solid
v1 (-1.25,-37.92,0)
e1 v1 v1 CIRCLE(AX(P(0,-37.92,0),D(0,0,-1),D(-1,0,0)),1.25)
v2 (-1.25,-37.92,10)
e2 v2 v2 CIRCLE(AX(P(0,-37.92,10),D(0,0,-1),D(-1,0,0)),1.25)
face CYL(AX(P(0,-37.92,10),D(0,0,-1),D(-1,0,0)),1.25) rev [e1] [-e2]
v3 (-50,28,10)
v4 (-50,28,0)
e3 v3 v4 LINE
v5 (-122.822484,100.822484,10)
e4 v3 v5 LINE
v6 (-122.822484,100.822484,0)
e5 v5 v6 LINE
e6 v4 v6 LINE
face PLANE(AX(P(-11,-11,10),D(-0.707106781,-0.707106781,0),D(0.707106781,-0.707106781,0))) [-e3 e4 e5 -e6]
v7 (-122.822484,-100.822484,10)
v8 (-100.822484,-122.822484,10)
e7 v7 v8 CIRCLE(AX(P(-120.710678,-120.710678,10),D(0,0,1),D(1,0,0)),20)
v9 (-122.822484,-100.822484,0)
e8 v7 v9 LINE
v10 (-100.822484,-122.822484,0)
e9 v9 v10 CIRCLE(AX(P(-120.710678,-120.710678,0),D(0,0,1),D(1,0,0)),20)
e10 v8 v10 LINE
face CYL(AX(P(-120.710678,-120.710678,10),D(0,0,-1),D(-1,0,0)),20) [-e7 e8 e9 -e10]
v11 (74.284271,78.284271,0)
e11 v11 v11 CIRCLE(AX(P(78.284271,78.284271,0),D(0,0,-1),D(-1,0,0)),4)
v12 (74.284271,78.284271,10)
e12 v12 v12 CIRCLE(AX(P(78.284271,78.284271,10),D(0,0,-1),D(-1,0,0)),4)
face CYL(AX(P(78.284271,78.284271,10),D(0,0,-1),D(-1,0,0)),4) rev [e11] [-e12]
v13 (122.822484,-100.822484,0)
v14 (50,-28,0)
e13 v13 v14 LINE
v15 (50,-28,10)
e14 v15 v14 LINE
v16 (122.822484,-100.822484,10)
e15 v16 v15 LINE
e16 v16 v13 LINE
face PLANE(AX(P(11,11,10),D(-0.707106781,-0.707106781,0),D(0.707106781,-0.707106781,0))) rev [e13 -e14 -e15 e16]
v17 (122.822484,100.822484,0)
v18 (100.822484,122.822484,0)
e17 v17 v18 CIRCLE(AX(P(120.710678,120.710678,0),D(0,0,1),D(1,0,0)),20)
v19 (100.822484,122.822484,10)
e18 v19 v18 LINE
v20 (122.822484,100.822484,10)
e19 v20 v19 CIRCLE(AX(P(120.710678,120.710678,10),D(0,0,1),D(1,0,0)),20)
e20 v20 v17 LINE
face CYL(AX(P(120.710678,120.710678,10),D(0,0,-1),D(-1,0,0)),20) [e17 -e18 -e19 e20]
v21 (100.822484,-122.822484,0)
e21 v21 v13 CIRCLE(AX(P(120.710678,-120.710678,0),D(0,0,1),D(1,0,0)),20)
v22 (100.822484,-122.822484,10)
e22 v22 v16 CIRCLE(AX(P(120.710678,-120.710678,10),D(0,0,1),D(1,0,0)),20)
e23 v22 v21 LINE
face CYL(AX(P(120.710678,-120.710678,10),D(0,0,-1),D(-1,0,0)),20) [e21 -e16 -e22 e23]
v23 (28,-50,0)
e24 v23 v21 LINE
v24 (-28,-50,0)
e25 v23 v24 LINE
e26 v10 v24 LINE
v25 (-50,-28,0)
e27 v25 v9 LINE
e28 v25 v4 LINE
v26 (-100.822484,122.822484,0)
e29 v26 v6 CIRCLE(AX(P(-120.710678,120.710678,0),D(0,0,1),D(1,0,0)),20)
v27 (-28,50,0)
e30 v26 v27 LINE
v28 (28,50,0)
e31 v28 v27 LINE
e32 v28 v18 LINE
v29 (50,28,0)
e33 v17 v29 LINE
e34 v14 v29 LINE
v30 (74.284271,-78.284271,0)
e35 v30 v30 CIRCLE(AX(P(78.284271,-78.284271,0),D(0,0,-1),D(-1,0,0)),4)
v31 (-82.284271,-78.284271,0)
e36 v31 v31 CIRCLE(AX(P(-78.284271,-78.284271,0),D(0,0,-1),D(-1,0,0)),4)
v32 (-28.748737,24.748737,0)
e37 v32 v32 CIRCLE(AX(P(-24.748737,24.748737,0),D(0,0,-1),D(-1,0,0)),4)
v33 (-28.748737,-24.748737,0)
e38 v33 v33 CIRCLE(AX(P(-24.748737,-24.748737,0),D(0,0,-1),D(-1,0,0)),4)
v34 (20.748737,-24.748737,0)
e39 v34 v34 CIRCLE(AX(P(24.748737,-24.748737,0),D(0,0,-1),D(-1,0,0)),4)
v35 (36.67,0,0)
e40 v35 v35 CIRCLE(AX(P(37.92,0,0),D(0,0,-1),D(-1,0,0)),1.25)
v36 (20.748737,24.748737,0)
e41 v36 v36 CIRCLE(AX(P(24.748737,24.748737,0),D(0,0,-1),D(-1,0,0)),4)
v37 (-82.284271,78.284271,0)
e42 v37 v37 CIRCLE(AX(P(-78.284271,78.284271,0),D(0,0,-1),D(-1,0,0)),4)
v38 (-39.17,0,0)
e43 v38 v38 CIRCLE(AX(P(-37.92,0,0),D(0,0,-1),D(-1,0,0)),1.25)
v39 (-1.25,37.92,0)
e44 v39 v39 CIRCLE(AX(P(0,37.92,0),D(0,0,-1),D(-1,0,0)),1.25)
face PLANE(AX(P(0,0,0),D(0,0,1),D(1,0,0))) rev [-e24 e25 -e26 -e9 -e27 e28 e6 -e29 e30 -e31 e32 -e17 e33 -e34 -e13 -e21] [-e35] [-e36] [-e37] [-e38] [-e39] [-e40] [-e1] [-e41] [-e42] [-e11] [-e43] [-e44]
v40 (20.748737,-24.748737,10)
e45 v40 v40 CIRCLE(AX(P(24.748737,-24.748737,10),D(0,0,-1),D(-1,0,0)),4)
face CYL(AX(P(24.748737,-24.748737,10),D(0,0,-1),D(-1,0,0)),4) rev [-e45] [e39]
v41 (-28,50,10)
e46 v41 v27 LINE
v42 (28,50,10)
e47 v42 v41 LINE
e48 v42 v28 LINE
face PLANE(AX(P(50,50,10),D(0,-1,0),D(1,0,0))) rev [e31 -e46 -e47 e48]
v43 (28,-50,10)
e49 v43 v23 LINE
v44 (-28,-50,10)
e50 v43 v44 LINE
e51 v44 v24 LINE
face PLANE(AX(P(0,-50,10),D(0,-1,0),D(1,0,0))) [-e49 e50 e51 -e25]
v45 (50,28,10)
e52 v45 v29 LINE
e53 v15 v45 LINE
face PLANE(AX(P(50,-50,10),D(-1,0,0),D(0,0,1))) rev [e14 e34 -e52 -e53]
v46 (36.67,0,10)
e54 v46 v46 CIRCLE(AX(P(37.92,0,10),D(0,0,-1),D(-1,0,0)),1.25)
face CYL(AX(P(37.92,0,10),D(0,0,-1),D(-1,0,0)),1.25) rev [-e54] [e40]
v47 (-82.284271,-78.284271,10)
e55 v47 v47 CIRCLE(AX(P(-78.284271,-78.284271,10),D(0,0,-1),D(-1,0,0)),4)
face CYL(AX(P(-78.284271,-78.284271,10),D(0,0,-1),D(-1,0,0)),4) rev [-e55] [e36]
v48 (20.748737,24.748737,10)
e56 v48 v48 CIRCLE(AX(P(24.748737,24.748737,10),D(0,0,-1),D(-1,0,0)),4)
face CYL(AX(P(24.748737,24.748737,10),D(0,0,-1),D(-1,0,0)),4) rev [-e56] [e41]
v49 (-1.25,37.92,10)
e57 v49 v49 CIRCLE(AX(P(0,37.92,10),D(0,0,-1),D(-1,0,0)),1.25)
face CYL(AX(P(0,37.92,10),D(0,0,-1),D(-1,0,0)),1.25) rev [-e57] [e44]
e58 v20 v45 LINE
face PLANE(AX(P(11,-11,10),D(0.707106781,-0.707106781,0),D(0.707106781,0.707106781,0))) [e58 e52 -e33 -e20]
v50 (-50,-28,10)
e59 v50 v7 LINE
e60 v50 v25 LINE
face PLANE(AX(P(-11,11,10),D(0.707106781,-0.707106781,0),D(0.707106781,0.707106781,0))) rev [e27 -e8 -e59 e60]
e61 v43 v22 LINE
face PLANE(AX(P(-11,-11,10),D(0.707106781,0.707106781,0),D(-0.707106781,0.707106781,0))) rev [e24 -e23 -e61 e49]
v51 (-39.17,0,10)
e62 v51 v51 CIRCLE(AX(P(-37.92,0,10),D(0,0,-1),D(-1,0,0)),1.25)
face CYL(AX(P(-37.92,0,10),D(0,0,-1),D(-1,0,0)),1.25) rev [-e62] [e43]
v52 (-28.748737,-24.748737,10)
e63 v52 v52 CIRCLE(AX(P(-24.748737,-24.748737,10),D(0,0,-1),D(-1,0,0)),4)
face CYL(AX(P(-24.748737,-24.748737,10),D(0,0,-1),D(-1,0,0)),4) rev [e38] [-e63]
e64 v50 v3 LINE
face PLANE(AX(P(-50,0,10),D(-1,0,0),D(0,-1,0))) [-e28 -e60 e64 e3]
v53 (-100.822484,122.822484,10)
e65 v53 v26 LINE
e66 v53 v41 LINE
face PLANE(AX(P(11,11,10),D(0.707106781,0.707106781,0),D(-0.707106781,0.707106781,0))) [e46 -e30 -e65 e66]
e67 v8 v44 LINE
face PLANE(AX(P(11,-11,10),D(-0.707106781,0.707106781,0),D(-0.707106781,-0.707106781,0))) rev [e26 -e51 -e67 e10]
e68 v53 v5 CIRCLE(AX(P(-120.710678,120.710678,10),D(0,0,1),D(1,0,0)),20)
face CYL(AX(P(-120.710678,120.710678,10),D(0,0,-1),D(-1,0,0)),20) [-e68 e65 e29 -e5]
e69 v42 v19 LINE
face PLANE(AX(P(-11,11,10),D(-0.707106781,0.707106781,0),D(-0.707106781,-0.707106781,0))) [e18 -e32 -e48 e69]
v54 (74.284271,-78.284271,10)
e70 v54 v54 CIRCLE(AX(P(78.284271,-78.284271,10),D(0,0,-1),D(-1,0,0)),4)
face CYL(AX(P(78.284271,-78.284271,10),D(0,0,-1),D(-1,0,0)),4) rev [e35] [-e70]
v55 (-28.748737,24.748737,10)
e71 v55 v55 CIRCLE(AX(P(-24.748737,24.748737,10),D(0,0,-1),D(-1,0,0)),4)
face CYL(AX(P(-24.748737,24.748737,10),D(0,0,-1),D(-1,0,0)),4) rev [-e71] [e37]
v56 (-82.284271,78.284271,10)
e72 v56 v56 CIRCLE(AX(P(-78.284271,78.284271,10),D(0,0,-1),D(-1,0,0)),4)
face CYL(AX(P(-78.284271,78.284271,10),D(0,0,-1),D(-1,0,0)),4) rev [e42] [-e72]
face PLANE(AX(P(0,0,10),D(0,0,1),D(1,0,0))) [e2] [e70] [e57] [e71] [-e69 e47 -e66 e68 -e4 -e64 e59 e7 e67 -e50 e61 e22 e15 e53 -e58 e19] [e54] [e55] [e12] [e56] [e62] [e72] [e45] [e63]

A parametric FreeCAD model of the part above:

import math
import FreeCAD as App
import Part
import Sketcher
from FreeCAD import Vector
Q = App.Units.Quantity

doc = App.newDocument("Part")
body = doc.addObject("PartDesign::Body", "Body")

# Sketch on XY plane
sketch1 = doc.addObject("Sketcher::SketchObject", "Sketch")
body.addObject(sketch1)
sketch1.AttachmentSupport = (doc.XY_Plane, [""])
sketch1.MapMode = "FlatFace"
sketch1.addGeometry(Part.ArcOfCircle(Part.Circle(Vector(-121, 121, 0), Vector(0, 0, 1), 20), math.radians(6), math.radians(264)), False)
sketch1.addGeometry(Part.LineSegment(Vector(-123, 101, 0), Vector(-50, 28, 0)), False)
sketch1.addGeometry(Part.LineSegment(Vector(-50, 28, 0), Vector(-50, -28, 0)), False)
sketch1.addGeometry(Part.LineSegment(Vector(-50, -28, 0), Vector(-123, -101, 0)), False)
sketch1.addGeometry(Part.ArcOfCircle(Part.Circle(Vector(-121, -121, 0), Vector(0, 0, 1), 20), math.radians(96), math.radians(354)), False)
sketch1.addGeometry(Part.LineSegment(Vector(-101, -123, 0), Vector(-28, -50, 0)), False)
sketch1.addGeometry(Part.LineSegment(Vector(-28, -50, 0), Vector(28, -50, 0)), False)
sketch1.addGeometry(Part.LineSegment(Vector(28, -50, 0), Vector(101, -123, 0)), False)
sketch1.addGeometry(Part.ArcOfCircle(Part.Circle(Vector(121, -121, 0), Vector(0, 0, 1), 20), math.radians(-174), math.radians(0)), False)
sketch1.addGeometry(Part.ArcOfCircle(Part.Circle(Vector(121, -121, 0), Vector(0, 0, 1), 20), math.radians(0), math.radians(84)), False)
sketch1.addGeometry(Part.LineSegment(Vector(123, -101, 0), Vector(50, -28, 0)), False)
sketch1.addGeometry(Part.LineSegment(Vector(50, -28, 0), Vector(50, 28, 0)), False)
sketch1.addGeometry(Part.LineSegment(Vector(50, 28, 0), Vector(123, 101, 0)), False)
sketch1.addGeometry(Part.ArcOfCircle(Part.Circle(Vector(121, 121, 0), Vector(0, 0, 1), 20), math.radians(-84), math.radians(0)), False)
sketch1.addGeometry(Part.ArcOfCircle(Part.Circle(Vector(121, 121, 0), Vector(0, 0, 1), 20), math.radians(0), math.radians(174)), False)
sketch1.addGeometry(Part.LineSegment(Vector(101, 123, 0), Vector(28, 50, 0)), False)
sketch1.addGeometry(Part.LineSegment(Vector(28, 50, 0), Vector(-28, 50, 0)), False)
sketch1.addGeometry(Part.LineSegment(Vector(-28, 50, 0), Vector(-101, 123, 0)), False)
sketch1.addConstraint(Sketcher.Constraint("Coincident", 0, 2, 1, 1))
sketch1.addConstraint(Sketcher.Constraint("Coincident", 1, 2, 2, 1))
sketch1.addConstraint(Sketcher.Constraint("Coincident", 2, 2, 3, 1))
sketch1.addConstraint(Sketcher.Constraint("Coincident", 3, 2, 4, 1))
sketch1.addConstraint(Sketcher.Constraint("Coincident", 4, 2, 5, 1))
sketch1.addConstraint(Sketcher.Constraint("Coincident", 5, 2, 6, 1))
sketch1.addConstraint(Sketcher.Constraint("Coincident", 6, 2, 7, 1))
sketch1.addConstraint(Sketcher.Constraint("Coincident", 7, 2, 8, 1))
sketch1.addConstraint(Sketcher.Constraint("Tangent", 8, 2, 9, 1))
sketch1.addConstraint(Sketcher.Constraint("Coincident", 9, 2, 10, 1))
sketch1.addConstraint(Sketcher.Constraint("Coincident", 10, 2, 11, 1))
sketch1.addConstraint(Sketcher.Constraint("Coincident", 11, 2, 12, 1))
sketch1.addConstraint(Sketcher.Constraint("Coincident", 12, 2, 13, 1))
sketch1.addConstraint(Sketcher.Constraint("Tangent", 13, 2, 14, 1))
sketch1.addConstraint(Sketcher.Constraint("Coincident", 14, 2, 15, 1))
sketch1.addConstraint(Sketcher.Constraint("Coincident", 15, 2, 16, 1))
sketch1.addConstraint(Sketcher.Constraint("Coincident", 16, 2, 17, 1))
sketch1.addConstraint(Sketcher.Constraint("Coincident", 17, 2, 0, 1))
sketch1.addConstraint(Sketcher.Constraint("Vertical", 2))
sketch1.addConstraint(Sketcher.Constraint("Horizontal", 6))
sketch1.addConstraint(Sketcher.Constraint("Vertical", 11))
sketch1.addConstraint(Sketcher.Constraint("Horizontal", 16))
sketch1.addConstraint(Sketcher.Constraint("Equal", 0, 4))
sketch1.addConstraint(Sketcher.Constraint("Equal", 4, 8))
sketch1.addConstraint(Sketcher.Constraint("Equal", 8, 9))
sketch1.addConstraint(Sketcher.Constraint("Equal", 9, 13))
sketch1.addConstraint(Sketcher.Constraint("Equal", 13, 14))
sketch1.addConstraint(Sketcher.Constraint("Symmetric", 0, 3, 8, 3, -1, 1))
sketch1.addConstraint(Sketcher.Constraint("Symmetric", 4, 3, 13, 3, -1, 1))
sketch1.addConstraint(Sketcher.Constraint("Symmetric", 1, 2, 10, 2, -1, 1))
sketch1.addConstraint(Sketcher.Constraint("Symmetric", 5, 2, 15, 2, -1, 1))
sketch1.addConstraint(Sketcher.Constraint("Symmetric", 4, 3, 8, 3, -2))
sketch1.addConstraint(Sketcher.Constraint("Perpendicular", 1, 3))
sketch1.addConstraint(Sketcher.Constraint("Parallel", 3, 5))
sketch1.addConstraint(Sketcher.Constraint("Perpendicular", 5, 7))
sketch1.addConstraint(Sketcher.Constraint("Parallel", 7, 10))
sketch1.addConstraint(Sketcher.Constraint("Perpendicular", 10, 12))
sketch1.addConstraint(Sketcher.Constraint("Parallel", 12, 15))
sketch1.addConstraint(Sketcher.Constraint("Perpendicular", 15, 17))
sketch1.addConstraint(Sketcher.Constraint("Horizontal", 4, 2, 7, 2))
sketch1.addConstraint(Sketcher.Constraint("Horizontal", 9, 3, 8, 2))
sketch1.addConstraint(Sketcher.Constraint("Horizontal", 3, 2, 9, 2))
sketch1.addConstraint(Sketcher.Constraint("Horizontal", 2, 2, 10, 2))
sketch1.addConstraint(Sketcher.Constraint("Horizontal", 1, 2, 11, 2))
sketch1.addConstraint(Sketcher.Constraint("Horizontal", 14, 3, 13, 2))
sketch1.addConstraint(Sketcher.Constraint("Horizontal", 14, 2, 17, 2))
sketch1.addConstraint(Sketcher.Constraint("Equal", 16, 2))
sketch1.addConstraint(Sketcher.Constraint("Equal", 3, 5))
sketch1.addConstraint(Sketcher.Constraint("Radius", 0, Q("20 mm")))
sketch1.addConstraint(Sketcher.Constraint("DistanceX", 6, 1, 6, 2, Q("56 mm")))
sketch1.addConstraint(Sketcher.Constraint("DistanceX", 1, 2, -1, 1, Q("50 mm")))
sketch1.addConstraint(Sketcher.Constraint("DistanceY", 5, 2, -1, 1, Q("50 mm")))
sketch1.addConstraint(Sketcher.Constraint("DistanceX", 0, 3, -1, 1, Q("120.710678 mm")))
pad1 = doc.addObject("PartDesign::Pad", "Pad")
body.addObject(pad1)
pad1.Profile = sketch1
pad1.Length = 10

# Sketch on XY plane
sketch2 = doc.addObject("Sketcher::SketchObject", "Sketch001")
body.addObject(sketch2)
sketch2.AttachmentSupport = (doc.XY_Plane, [""])
sketch2.MapMode = "FlatFace"
sketch2.addGeometry(Part.Circle(Vector(78.3, 78.3, 0), Vector(0, 0, 1), 4), False)
sketch2.addGeometry(Part.Circle(Vector(24.7, 24.7, 0), Vector(0, 0, 1), 4), False)
sketch2.addGeometry(Part.Circle(Vector(-78.3, 78.3, 0), Vector(0, 0, 1), 4), False)
sketch2.addGeometry(Part.Circle(Vector(-24.7, 24.7, 0), Vector(0, 0, 1), 4), False)
sketch2.addGeometry(Part.Circle(Vector(-78.3, -78.3, 0), Vector(0, 0, 1), 4), False)
sketch2.addGeometry(Part.Circle(Vector(-24.7, -24.7, 0), Vector(0, 0, 1), 4), False)
sketch2.addGeometry(Part.Circle(Vector(78.3, -78.3, 0), Vector(0, 0, 1), 4), False)
sketch2.addGeometry(Part.Circle(Vector(24.7, -24.7, 0), Vector(0, 0, 1), 4), False)
sketch2.addGeometry(Part.Circle(Vector(37.9, 0, 0), Vector(0, 0, 1), 1.2), False)
sketch2.addGeometry(Part.Circle(Vector(0, 37.9, 0), Vector(0, 0, 1), 1.2), False)
sketch2.addGeometry(Part.Circle(Vector(-37.9, 0, 0), Vector(0, 0, 1), 1.2), False)
sketch2.addGeometry(Part.Circle(Vector(0, -37.9, 0), Vector(0, 0, 1), 1.2), False)
sketch2.addConstraint(Sketcher.Constraint("Equal", 0, 1))
sketch2.addConstraint(Sketcher.Constraint("Equal", 1, 2))
sketch2.addConstraint(Sketcher.Constraint("Equal", 2, 3))
sketch2.addConstraint(Sketcher.Constraint("Equal", 3, 4))
sketch2.addConstraint(Sketcher.Constraint("Equal", 4, 5))
sketch2.addConstraint(Sketcher.Constraint("Equal", 5, 6))
sketch2.addConstraint(Sketcher.Constraint("Equal", 6, 7))
sketch2.addConstraint(Sketcher.Constraint("Equal", 8, 9))
sketch2.addConstraint(Sketcher.Constraint("Equal", 9, 10))
sketch2.addConstraint(Sketcher.Constraint("Equal", 10, 11))
sketch2.addConstraint(Sketcher.Constraint("Symmetric", 0, 3, 4, 3, -1, 1))
sketch2.addConstraint(Sketcher.Constraint("Symmetric", 1, 3, 5, 3, -1, 1))
sketch2.addConstraint(Sketcher.Constraint("Symmetric", 2, 3, 6, 3, -1, 1))
sketch2.addConstraint(Sketcher.Constraint("Symmetric", 3, 3, 7, 3, -1, 1))
sketch2.addConstraint(Sketcher.Constraint("Symmetric", 8, 3, 10, 3, -1, 1))
sketch2.addConstraint(Sketcher.Constraint("Symmetric", 9, 3, 11, 3, -1, 1))
sketch2.addConstraint(Sketcher.Constraint("Symmetric", 0, 3, 2, 3, -2))
sketch2.addConstraint(Sketcher.Constraint("Symmetric", 1, 3, 3, 3, -2))
sketch2.addConstraint(Sketcher.Constraint("PointOnObject", 8, 3, -1))
sketch2.addConstraint(Sketcher.Constraint("PointOnObject", 9, 3, -2))
sketch2.addConstraint(Sketcher.Constraint("Diameter", 0, Q("8 mm")))
sketch2.addConstraint(Sketcher.Constraint("Diameter", 8, Q("2.5 mm")))
sketch2.addConstraint(Sketcher.Constraint("DistanceX", -1, 1, 8, 3, Q("37.92 mm")))
sketch2.addConstraint(Sketcher.Constraint("DistanceY", -1, 1, 9, 3, Q("37.92 mm")))
sketch2.addConstraint(Sketcher.Constraint("DistanceX", -1, 1, 0, 3, Q("78.284271 mm")))
sketch2.addConstraint(Sketcher.Constraint("DistanceY", -1, 1, 0, 3, Q("78.284271 mm")))
sketch2.addConstraint(Sketcher.Constraint("DistanceX", 2, 3, 1, 3, Q("103.033009 mm")))
sketch2.addConstraint(Sketcher.Constraint("DistanceY", 4, 3, 3, 3, Q("103.033009 mm")))
pocket1 = doc.addObject("PartDesign::Pocket", "Pocket")
body.addObject(pocket1)
pocket1.Profile = sketch2
pocket1.Type = "ThroughAll"
pocket1.Reversed = True

doc.recompute()
